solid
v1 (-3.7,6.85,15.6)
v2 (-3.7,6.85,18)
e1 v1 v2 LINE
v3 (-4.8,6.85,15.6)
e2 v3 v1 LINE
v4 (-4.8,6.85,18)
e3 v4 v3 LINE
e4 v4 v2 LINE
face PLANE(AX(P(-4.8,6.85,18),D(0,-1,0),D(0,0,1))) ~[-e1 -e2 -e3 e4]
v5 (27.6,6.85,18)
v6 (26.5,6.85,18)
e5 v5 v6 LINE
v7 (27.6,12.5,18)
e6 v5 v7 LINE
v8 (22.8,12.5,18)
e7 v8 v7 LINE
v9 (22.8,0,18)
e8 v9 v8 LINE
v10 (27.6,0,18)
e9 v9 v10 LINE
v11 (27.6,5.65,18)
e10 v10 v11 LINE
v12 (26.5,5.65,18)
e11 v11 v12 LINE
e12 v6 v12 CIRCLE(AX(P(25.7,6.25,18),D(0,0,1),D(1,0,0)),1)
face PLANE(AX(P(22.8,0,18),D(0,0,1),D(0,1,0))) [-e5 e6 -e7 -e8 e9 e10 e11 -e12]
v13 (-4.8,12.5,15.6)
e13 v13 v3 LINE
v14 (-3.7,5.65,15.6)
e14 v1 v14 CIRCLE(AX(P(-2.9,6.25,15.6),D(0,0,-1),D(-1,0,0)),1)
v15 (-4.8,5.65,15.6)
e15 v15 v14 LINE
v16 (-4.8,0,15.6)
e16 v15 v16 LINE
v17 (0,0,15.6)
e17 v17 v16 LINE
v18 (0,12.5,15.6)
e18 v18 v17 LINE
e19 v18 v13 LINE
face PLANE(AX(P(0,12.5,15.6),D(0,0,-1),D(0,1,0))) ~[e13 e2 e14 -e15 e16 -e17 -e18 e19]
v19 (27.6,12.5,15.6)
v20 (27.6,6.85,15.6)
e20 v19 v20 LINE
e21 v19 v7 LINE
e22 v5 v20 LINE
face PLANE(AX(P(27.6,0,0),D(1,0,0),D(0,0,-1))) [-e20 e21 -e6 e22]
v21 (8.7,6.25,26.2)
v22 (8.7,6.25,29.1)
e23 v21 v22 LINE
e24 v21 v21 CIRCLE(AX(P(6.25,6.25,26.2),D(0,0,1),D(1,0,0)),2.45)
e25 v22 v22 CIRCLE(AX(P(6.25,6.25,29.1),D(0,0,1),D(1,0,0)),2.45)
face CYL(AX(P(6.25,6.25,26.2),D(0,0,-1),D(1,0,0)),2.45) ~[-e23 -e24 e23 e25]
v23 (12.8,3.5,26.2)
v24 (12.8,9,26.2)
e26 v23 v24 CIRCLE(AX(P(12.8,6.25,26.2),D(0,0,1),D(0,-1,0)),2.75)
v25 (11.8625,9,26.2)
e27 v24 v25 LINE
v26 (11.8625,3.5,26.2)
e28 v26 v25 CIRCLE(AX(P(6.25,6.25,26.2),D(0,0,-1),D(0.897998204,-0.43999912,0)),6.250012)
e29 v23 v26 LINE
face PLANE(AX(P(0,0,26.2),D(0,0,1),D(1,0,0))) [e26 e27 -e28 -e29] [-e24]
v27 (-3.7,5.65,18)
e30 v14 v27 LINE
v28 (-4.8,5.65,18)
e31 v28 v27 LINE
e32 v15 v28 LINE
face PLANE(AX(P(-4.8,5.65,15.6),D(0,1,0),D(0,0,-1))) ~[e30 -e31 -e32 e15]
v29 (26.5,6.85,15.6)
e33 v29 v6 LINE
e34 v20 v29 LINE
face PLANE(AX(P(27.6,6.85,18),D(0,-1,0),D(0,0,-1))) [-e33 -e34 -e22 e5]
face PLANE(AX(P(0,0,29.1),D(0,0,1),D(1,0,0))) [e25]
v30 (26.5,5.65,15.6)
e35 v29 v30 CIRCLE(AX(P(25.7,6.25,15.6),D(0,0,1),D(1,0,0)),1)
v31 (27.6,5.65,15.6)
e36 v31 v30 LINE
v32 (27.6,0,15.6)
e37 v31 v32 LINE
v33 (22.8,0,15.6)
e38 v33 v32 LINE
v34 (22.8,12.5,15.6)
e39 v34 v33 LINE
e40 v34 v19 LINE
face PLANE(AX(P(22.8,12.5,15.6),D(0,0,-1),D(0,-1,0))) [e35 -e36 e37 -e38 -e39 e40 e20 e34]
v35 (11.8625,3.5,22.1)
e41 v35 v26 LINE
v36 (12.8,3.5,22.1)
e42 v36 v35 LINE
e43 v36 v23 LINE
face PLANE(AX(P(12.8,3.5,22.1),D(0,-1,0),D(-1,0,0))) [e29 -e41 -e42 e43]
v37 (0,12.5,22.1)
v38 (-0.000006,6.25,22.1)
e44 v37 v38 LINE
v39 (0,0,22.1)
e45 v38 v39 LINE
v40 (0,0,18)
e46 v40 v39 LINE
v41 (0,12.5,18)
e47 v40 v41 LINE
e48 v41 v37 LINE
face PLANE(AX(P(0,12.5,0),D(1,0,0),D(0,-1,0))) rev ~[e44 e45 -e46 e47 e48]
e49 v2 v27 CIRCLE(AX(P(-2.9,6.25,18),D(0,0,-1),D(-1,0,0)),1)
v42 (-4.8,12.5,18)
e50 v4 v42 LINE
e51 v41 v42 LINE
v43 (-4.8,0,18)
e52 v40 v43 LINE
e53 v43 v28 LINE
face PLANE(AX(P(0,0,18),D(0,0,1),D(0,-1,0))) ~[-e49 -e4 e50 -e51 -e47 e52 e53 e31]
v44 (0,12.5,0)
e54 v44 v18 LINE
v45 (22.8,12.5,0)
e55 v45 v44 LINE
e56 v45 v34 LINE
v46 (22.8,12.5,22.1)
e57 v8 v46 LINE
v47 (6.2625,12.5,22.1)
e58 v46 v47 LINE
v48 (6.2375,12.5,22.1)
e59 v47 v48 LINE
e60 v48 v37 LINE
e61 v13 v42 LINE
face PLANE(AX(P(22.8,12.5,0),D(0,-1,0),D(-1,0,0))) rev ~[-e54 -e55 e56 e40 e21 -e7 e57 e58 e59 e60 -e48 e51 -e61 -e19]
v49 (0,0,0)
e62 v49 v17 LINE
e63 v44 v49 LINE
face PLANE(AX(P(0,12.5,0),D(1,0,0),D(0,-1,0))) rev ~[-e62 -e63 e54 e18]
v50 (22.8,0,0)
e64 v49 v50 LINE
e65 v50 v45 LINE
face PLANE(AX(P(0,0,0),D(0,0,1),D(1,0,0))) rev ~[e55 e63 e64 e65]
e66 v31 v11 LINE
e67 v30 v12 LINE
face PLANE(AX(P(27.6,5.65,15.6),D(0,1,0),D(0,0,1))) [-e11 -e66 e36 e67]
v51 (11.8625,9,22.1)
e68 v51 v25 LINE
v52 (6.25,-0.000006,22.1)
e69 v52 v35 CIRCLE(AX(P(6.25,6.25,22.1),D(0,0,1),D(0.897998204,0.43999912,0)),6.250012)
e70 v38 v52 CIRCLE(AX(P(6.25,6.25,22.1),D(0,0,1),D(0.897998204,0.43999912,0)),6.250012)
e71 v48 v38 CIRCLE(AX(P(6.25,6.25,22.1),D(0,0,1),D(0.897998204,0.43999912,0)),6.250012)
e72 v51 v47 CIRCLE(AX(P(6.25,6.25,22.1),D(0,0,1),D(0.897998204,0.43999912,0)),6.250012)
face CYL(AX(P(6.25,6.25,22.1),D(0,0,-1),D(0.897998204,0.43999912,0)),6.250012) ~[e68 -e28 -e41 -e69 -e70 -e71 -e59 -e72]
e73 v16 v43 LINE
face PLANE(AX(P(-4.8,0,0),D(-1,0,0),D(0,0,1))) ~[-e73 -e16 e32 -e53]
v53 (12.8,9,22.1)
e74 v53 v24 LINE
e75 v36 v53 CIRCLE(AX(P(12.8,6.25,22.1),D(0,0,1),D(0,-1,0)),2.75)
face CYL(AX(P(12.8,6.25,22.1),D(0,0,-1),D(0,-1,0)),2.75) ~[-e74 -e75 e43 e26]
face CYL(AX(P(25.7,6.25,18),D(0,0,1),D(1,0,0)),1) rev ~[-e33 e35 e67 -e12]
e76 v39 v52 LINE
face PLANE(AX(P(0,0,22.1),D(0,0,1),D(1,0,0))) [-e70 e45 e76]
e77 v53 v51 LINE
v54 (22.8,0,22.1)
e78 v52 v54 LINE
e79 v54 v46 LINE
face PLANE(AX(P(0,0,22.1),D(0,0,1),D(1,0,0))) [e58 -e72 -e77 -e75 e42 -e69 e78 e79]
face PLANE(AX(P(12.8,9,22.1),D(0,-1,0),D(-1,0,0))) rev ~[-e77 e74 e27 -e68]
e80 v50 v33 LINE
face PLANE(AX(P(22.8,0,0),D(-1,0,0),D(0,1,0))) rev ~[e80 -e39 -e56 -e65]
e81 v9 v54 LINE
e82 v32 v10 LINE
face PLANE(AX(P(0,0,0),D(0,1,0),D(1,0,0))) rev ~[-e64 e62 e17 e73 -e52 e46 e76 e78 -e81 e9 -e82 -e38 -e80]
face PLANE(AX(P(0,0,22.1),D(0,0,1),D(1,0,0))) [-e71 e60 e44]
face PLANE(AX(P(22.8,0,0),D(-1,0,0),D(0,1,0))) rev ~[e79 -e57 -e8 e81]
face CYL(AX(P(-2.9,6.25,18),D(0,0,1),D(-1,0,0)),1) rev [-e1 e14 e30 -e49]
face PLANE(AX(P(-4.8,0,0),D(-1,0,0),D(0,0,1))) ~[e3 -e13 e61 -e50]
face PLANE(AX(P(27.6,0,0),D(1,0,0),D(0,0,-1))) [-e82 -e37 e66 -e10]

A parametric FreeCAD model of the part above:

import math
import FreeCAD as App
import Part
import Sketcher
from FreeCAD import Vector

doc = App.newDocument("Part")
body = doc.addObject("PartDesign::Body", "Body")

# Sketch on XY plane
sketch1 = body.newObject("Sketcher::SketchObject", "Sketch")
sketch1.AttachmentSupport = (doc.getObject("XY_Plane"), [""])
sketch1.MapMode = "FlatFace"
sketch1.addGeometry(Part.LineSegment(Vector(0, 12.5, 0), Vector(0, 0, 0)), False)
sketch1.addGeometry(Part.LineSegment(Vector(0, 0, 0), Vector(22.8, 0, 0)), False)
sketch1.addGeometry(Part.LineSegment(Vector(22.8, 0, 0), Vector(22.8, 12.5, 0)), False)
sketch1.addGeometry(Part.LineSegment(Vector(22.8, 12.5, 0), Vector(0, 12.5, 0)), False)
sketch1.addConstraint(Sketcher.Constraint("Coincident", 0, 2, 1, 1))
sketch1.addConstraint(Sketcher.Constraint("Coincident", 1, 2, 2, 1))
sketch1.addConstraint(Sketcher.Constraint("Coincident", 2, 2, 3, 1))
sketch1.addConstraint(Sketcher.Constraint("Coincident", 3, 2, 0, 1))
sketch1.addConstraint(Sketcher.Constraint("Vertical", 0))
sketch1.addConstraint(Sketcher.Constraint("Horizontal", 1))
sketch1.addConstraint(Sketcher.Constraint("Vertical", 2))
sketch1.addConstraint(Sketcher.Constraint("Horizontal", 3))
sketch1.addConstraint(Sketcher.Constraint("Coincident", 0, 2, -1, 1))
sketch1.addConstraint(Sketcher.Constraint("DistanceX", 1, 1, 1, 2, 22.8))
sketch1.addConstraint(Sketcher.Constraint("DistanceY", 0, 2, 0, 1, 12.5))
pad1 = body.newObject("PartDesign::Pad", "Pad")
pad1.Profile = sketch1
pad1.Length = 22.1

# Sketch on YZ plane
sketch2 = body.newObject("Sketcher::SketchObject", "Sketch001")
sketch2.AttachmentSupport = (doc.getObject("YZ_Plane"), [""])
sketch2.MapMode = "FlatFace"
sketch2.AttachmentOffset = App.Placement(Vector(0, 0, 22.8), App.Rotation())
sketch2.addGeometry(Part.LineSegment(Vector(0, 15.6, 0), Vector(12.5, 15.6, 0)), False)
sketch2.addGeometry(Part.LineSegment(Vector(12.5, 15.6, 0), Vector(12.5, 18, 0)), False)
sketch2.addGeometry(Part.LineSegment(Vector(12.5, 18, 0), Vector(0, 18, 0)), False)
sketch2.addGeometry(Part.LineSegment(Vector(0, 18, 0), Vector(0, 15.6, 0)), False)
sketch2.addConstraint(Sketcher.Constraint("Coincident", 0, 2, 1, 1))
sketch2.addConstraint(Sketcher.Constraint("Coincident", 1, 2, 2, 1))
sketch2.addConstraint(Sketcher.Constraint("Coincident", 2, 2, 3, 1))
sketch2.addConstraint(Sketcher.Constraint("Coincident", 3, 2, 0, 1))
sketch2.addConstraint(Sketcher.Constraint("Horizontal", 0))
sketch2.addConstraint(Sketcher.Constraint("Vertical", 1))
sketch2.addConstraint(Sketcher.Constraint("Horizontal", 2))
sketch2.addConstraint(Sketcher.Constraint("Vertical", 3))
sketch2.addConstraint(Sketcher.Constraint("PointOnObject", 2, 2, -2))
sketch2.addConstraint(Sketcher.Constraint("DistanceY", 1, 1, 1, 2, 2.4))
sketch2.addConstraint(Sketcher.Constraint("DistanceX", 0, 1, 0, 2, 12.5))
sketch2.addConstraint(Sketcher.Constraint("DistanceY", -1, 1, 1, 2, 18.0))
pad2 = body.newObject("PartDesign::Pad", "Pad001")
pad2.Profile = sketch2
pad2.Length = 4.8

# Sketch on XY plane
sketch3 = body.newObject("Sketcher::SketchObject", "Sketch002")
sketch3.AttachmentSupport = (doc.getObject("XY_Plane"), [""])
sketch3.MapMode = "FlatFace"
sketch3.AttachmentOffset = App.Placement(Vector(0, 0, 18), App.Rotation())
sketch3.addGeometry(Part.Circle(Vector(25.7, 6.25, 0), Vector(0, 0, 1), 1), False)
sketch3.addConstraint(Sketcher.Constraint("Diameter", 0, 2.0))
sketch3.addConstraint(Sketcher.Constraint("DistanceX", -1, 1, 0, 3, 25.7))
sketch3.addConstraint(Sketcher.Constraint("DistanceY", -1, 1, 0, 3, 6.25))
pocket1 = body.newObject("PartDesign::Pocket", "Pocket")
pocket1.Profile = sketch3
pocket1.Length = 2.4

# Sketch on YZ plane
sketch4 = body.newObject("Sketcher::SketchObject", "Sketch003")
sketch4.AttachmentSupport = (doc.getObject("YZ_Plane"), [""])
sketch4.MapMode = "FlatFace"
sketch4.AttachmentOffset = App.Placement(Vector(0, 0, 27.6), App.Rotation())
sketch4.addGeometry(Part.LineSegment(Vector(6.85, 15.6, 0), Vector(6.85, 18, 0)), False)
sketch4.addGeometry(Part.LineSegment(Vector(6.85, 18, 0), Vector(5.65, 18, 0)), False)
sketch4.addGeometry(Part.LineSegment(Vector(5.65, 18, 0), Vector(5.65, 15.6, 0)), False)
sketch4.addGeometry(Part.LineSegment(Vector(5.65, 15.6, 0), Vector(6.85, 15.6, 0)), False)
sketch4.addConstraint(Sketcher.Constraint("Coincident", 0, 2, 1, 1))
sketch4.addConstraint(Sketcher.Constraint("Coincident", 1, 2, 2, 1))
sketch4.addConstraint(Sketcher.Constraint("Coincident", 2, 2, 3, 1))
sketch4.addConstraint(Sketcher.Constraint("Coincident", 3, 2, 0, 1))
sketch4.addConstraint(Sketcher.Constraint("Vertical", 0))
sketch4.addConstraint(Sketcher.Constraint("Horizontal", 1))
sketch4.addConstraint(Sketcher.Constraint("Vertical", 2))
sketch4.addConstraint(Sketcher.Constraint("Horizontal", 3))
sketch4.addConstraint(Sketcher.Constraint("DistanceX", 1, 2, 1, 1, 1.2))
sketch4.addConstraint(Sketcher.Constraint("DistanceY", 0, 1, 0, 2, 2.4))
sketch4.addConstraint(Sketcher.Constraint("DistanceY", -1, 1, 0, 2, 18.0))
sketch4.addConstraint(Sketcher.Constraint("DistanceX", -1, 1, 0, 2, 6.85))
pocket2 = body.newObject("PartDesign::Pocket", "Pocket001")
pocket2.Profile = sketch4
pocket2.Length = 2
doc.recompute()

datumplane = body.newObject("PartDesign::Plane", "DatumPlane")
datumplane.AttachmentSupport = (doc.getObject("YZ_Plane"), [""])
datumplane.MapMode = "FlatFace"
datumplane.AttachmentOffset = App.Placement(Vector(0, 0, 11.4), App.Rotation())
mirrored = body.newObject("PartDesign::Mirrored", "Mirrored")
mirrored.Originals = [pad2, pocket1, pocket2]
mirrored.MirrorPlane = (datumplane, [""])
body.Tip = mirrored

# Sketch on XY plane
sketch5 = body.newObject("Sketcher::SketchObject", "Sketch004")
sketch5.AttachmentSupport = (doc.getObject("XY_Plane"), [""])
sketch5.MapMode = "FlatFace"
sketch5.AttachmentOffset = App.Placement(Vector(0, 0, 22.1), App.Rotation())
sketch5.addGeometry(Part.ArcOfCircle(Part.Circle(Vector(6.25, 6.25, 0), Vector(0, 0, 1), 6.250012), math.radians(26.103825), math.radians(333.896175)), False)
sketch5.addGeometry(Part.LineSegment(Vector(11.8625, 3.5, 0), Vector(12.8, 3.5, 0)), False)
sketch5.addGeometry(Part.ArcOfCircle(Part.Circle(Vector(12.8, 6.25, 0), Vector(0, 0, 1), 2.75), math.radians(-90), math.radians(90)), False)
sketch5.addGeometry(Part.LineSegment(Vector(12.8, 9, 0), Vector(11.8625, 9, 0)), False)
sketch5.addConstraint(Sketcher.Constraint("Coincident", 0, 2, 1, 1))
sketch5.addConstraint(Sketcher.Constraint("Tangent", 1, 2, 2, 1))
sketch5.addConstraint(Sketcher.Constraint("Tangent", 2, 2, 3, 1))
sketch5.addConstraint(Sketcher.Constraint("Coincident", 3, 2, 0, 1))
sketch5.addConstraint(Sketcher.Constraint("Horizontal", 1))
sketch5.addConstraint(Sketcher.Constraint("Horizontal", 3))
sketch5.addConstraint(Sketcher.Constraint("Horizontal", 0, 3, 2, 3))
sketch5.addConstraint(Sketcher.Constraint("Radius", 2, 2.75))
sketch5.addConstraint(Sketcher.Constraint("Radius", 0, 6.25))
sketch5.addConstraint(Sketcher.Constraint("DistanceY", -1, 1, 2, 2, 9.0))
sketch5.addConstraint(Sketcher.Constraint("DistanceX", -1, 1, 2, 3, 12.8))
sketch5.addConstraint(Sketcher.Constraint("DistanceX", -1, 1, 0, 3, 6.25))
pad3 = body.newObject("PartDesign::Pad", "Pad002")
pad3.Profile = sketch5
pad3.Length = 4.1

# Sketch on XY plane
sketch6 = body.newObject("Sketcher::SketchObject", "Sketch005")
sketch6.AttachmentSupport = (doc.getObject("XY_Plane"), [""])
sketch6.MapMode = "FlatFace"
sketch6.AttachmentOffset = App.Placement(Vector(0, 0, 26.2), App.Rotation())
sketch6.addGeometry(Part.Circle(Vector(6.25, 6.25, 0), Vector(0, 0, 1), 2.45), False)
sketch6.addConstraint(Sketcher.Constraint("Diameter", 0, 4.9))
sketch6.addConstraint(Sketcher.Constraint("DistanceX", -1, 1, 0, 3, 6.25))
sketch6.addConstraint(Sketcher.Constraint("DistanceY", -1, 1, 0, 3, 6.25))
pad4 = body.newObject("PartDesign::Pad", "Pad003")
pad4.Profile = sketch6
pad4.Length = 2.9

doc.recompute()
